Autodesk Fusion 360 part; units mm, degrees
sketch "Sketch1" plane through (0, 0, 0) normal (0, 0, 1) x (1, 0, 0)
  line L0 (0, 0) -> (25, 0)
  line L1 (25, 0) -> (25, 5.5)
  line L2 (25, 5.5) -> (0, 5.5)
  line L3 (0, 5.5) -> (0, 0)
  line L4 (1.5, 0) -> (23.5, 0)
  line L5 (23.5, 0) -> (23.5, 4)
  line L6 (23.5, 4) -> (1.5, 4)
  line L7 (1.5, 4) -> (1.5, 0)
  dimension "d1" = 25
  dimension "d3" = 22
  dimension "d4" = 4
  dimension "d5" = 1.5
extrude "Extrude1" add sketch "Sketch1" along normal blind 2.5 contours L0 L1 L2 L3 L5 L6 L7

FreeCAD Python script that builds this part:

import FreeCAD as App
import Part
import Sketcher


def add_polygon(sketch, points):
    """Adds a closed chain of lines whose ends are joined by coincident constraints."""
    first, n = sketch.GeometryCount, len(points)
    for a, b in zip(points, points[1:] + points[:1]):
        sketch.addGeometry(Part.LineSegment(App.Vector(*a, 0), App.Vector(*b, 0)), False)
    for i in range(n):
        sketch.addConstraint(Sketcher.Constraint("Coincident", first + i, 2, first + (i + 1) % n, 1))

doc = App.newDocument("Part")
body = doc.addObject("PartDesign::Body", "Body")

# Sketch on XY plane
sketch1 = doc.addObject("Sketcher::SketchObject", "Sketch")
body.addObject(sketch1)
sketch1.AttachmentSupport = (doc.XY_Plane, [""])
sketch1.MapMode = "FlatFace"
add_polygon(sketch1, [(0, 5.5), (0, 0), (1.5, 0), (1.5, 4), (23.5, 4), (23.5, 0), (25, 0), (25, 5.5)])  # lines 0-7
sketch1.addConstraint([
    Sketcher.Constraint("Vertical", 0),
    Sketcher.Constraint("Horizontal", 1),
    Sketcher.Constraint("Vertical", 2),
    Sketcher.Constraint("Horizontal", 3),
    Sketcher.Constraint("Vertical", 4),
    Sketcher.Constraint("Horizontal", 5),
    Sketcher.Constraint("Vertical", 6),
    Sketcher.Constraint("Horizontal", 7),
    Sketcher.Constraint("Coincident", 0, 2, -1, 1),
    Sketcher.Constraint("PointOnObject", 4, 2, -1),
    Sketcher.Constraint("Equal", 1, 5),
    Sketcher.Constraint("DistanceX", 3, 1, 3, 2, 22.0),
    Sketcher.Constraint("DistanceX", 7, 2, 7, 1, 25.0),
    Sketcher.Constraint("DistanceY", 2, 1, 2, 2, 4.0),
    Sketcher.Constraint("DistanceY", 3, 2, 6, 2, 1.5),
])
pad1 = doc.addObject("PartDesign::Pad", "Pad")
body.addObject(pad1)
pad1.Profile = sketch1
pad1.Length = 2.5

doc.recompute()
